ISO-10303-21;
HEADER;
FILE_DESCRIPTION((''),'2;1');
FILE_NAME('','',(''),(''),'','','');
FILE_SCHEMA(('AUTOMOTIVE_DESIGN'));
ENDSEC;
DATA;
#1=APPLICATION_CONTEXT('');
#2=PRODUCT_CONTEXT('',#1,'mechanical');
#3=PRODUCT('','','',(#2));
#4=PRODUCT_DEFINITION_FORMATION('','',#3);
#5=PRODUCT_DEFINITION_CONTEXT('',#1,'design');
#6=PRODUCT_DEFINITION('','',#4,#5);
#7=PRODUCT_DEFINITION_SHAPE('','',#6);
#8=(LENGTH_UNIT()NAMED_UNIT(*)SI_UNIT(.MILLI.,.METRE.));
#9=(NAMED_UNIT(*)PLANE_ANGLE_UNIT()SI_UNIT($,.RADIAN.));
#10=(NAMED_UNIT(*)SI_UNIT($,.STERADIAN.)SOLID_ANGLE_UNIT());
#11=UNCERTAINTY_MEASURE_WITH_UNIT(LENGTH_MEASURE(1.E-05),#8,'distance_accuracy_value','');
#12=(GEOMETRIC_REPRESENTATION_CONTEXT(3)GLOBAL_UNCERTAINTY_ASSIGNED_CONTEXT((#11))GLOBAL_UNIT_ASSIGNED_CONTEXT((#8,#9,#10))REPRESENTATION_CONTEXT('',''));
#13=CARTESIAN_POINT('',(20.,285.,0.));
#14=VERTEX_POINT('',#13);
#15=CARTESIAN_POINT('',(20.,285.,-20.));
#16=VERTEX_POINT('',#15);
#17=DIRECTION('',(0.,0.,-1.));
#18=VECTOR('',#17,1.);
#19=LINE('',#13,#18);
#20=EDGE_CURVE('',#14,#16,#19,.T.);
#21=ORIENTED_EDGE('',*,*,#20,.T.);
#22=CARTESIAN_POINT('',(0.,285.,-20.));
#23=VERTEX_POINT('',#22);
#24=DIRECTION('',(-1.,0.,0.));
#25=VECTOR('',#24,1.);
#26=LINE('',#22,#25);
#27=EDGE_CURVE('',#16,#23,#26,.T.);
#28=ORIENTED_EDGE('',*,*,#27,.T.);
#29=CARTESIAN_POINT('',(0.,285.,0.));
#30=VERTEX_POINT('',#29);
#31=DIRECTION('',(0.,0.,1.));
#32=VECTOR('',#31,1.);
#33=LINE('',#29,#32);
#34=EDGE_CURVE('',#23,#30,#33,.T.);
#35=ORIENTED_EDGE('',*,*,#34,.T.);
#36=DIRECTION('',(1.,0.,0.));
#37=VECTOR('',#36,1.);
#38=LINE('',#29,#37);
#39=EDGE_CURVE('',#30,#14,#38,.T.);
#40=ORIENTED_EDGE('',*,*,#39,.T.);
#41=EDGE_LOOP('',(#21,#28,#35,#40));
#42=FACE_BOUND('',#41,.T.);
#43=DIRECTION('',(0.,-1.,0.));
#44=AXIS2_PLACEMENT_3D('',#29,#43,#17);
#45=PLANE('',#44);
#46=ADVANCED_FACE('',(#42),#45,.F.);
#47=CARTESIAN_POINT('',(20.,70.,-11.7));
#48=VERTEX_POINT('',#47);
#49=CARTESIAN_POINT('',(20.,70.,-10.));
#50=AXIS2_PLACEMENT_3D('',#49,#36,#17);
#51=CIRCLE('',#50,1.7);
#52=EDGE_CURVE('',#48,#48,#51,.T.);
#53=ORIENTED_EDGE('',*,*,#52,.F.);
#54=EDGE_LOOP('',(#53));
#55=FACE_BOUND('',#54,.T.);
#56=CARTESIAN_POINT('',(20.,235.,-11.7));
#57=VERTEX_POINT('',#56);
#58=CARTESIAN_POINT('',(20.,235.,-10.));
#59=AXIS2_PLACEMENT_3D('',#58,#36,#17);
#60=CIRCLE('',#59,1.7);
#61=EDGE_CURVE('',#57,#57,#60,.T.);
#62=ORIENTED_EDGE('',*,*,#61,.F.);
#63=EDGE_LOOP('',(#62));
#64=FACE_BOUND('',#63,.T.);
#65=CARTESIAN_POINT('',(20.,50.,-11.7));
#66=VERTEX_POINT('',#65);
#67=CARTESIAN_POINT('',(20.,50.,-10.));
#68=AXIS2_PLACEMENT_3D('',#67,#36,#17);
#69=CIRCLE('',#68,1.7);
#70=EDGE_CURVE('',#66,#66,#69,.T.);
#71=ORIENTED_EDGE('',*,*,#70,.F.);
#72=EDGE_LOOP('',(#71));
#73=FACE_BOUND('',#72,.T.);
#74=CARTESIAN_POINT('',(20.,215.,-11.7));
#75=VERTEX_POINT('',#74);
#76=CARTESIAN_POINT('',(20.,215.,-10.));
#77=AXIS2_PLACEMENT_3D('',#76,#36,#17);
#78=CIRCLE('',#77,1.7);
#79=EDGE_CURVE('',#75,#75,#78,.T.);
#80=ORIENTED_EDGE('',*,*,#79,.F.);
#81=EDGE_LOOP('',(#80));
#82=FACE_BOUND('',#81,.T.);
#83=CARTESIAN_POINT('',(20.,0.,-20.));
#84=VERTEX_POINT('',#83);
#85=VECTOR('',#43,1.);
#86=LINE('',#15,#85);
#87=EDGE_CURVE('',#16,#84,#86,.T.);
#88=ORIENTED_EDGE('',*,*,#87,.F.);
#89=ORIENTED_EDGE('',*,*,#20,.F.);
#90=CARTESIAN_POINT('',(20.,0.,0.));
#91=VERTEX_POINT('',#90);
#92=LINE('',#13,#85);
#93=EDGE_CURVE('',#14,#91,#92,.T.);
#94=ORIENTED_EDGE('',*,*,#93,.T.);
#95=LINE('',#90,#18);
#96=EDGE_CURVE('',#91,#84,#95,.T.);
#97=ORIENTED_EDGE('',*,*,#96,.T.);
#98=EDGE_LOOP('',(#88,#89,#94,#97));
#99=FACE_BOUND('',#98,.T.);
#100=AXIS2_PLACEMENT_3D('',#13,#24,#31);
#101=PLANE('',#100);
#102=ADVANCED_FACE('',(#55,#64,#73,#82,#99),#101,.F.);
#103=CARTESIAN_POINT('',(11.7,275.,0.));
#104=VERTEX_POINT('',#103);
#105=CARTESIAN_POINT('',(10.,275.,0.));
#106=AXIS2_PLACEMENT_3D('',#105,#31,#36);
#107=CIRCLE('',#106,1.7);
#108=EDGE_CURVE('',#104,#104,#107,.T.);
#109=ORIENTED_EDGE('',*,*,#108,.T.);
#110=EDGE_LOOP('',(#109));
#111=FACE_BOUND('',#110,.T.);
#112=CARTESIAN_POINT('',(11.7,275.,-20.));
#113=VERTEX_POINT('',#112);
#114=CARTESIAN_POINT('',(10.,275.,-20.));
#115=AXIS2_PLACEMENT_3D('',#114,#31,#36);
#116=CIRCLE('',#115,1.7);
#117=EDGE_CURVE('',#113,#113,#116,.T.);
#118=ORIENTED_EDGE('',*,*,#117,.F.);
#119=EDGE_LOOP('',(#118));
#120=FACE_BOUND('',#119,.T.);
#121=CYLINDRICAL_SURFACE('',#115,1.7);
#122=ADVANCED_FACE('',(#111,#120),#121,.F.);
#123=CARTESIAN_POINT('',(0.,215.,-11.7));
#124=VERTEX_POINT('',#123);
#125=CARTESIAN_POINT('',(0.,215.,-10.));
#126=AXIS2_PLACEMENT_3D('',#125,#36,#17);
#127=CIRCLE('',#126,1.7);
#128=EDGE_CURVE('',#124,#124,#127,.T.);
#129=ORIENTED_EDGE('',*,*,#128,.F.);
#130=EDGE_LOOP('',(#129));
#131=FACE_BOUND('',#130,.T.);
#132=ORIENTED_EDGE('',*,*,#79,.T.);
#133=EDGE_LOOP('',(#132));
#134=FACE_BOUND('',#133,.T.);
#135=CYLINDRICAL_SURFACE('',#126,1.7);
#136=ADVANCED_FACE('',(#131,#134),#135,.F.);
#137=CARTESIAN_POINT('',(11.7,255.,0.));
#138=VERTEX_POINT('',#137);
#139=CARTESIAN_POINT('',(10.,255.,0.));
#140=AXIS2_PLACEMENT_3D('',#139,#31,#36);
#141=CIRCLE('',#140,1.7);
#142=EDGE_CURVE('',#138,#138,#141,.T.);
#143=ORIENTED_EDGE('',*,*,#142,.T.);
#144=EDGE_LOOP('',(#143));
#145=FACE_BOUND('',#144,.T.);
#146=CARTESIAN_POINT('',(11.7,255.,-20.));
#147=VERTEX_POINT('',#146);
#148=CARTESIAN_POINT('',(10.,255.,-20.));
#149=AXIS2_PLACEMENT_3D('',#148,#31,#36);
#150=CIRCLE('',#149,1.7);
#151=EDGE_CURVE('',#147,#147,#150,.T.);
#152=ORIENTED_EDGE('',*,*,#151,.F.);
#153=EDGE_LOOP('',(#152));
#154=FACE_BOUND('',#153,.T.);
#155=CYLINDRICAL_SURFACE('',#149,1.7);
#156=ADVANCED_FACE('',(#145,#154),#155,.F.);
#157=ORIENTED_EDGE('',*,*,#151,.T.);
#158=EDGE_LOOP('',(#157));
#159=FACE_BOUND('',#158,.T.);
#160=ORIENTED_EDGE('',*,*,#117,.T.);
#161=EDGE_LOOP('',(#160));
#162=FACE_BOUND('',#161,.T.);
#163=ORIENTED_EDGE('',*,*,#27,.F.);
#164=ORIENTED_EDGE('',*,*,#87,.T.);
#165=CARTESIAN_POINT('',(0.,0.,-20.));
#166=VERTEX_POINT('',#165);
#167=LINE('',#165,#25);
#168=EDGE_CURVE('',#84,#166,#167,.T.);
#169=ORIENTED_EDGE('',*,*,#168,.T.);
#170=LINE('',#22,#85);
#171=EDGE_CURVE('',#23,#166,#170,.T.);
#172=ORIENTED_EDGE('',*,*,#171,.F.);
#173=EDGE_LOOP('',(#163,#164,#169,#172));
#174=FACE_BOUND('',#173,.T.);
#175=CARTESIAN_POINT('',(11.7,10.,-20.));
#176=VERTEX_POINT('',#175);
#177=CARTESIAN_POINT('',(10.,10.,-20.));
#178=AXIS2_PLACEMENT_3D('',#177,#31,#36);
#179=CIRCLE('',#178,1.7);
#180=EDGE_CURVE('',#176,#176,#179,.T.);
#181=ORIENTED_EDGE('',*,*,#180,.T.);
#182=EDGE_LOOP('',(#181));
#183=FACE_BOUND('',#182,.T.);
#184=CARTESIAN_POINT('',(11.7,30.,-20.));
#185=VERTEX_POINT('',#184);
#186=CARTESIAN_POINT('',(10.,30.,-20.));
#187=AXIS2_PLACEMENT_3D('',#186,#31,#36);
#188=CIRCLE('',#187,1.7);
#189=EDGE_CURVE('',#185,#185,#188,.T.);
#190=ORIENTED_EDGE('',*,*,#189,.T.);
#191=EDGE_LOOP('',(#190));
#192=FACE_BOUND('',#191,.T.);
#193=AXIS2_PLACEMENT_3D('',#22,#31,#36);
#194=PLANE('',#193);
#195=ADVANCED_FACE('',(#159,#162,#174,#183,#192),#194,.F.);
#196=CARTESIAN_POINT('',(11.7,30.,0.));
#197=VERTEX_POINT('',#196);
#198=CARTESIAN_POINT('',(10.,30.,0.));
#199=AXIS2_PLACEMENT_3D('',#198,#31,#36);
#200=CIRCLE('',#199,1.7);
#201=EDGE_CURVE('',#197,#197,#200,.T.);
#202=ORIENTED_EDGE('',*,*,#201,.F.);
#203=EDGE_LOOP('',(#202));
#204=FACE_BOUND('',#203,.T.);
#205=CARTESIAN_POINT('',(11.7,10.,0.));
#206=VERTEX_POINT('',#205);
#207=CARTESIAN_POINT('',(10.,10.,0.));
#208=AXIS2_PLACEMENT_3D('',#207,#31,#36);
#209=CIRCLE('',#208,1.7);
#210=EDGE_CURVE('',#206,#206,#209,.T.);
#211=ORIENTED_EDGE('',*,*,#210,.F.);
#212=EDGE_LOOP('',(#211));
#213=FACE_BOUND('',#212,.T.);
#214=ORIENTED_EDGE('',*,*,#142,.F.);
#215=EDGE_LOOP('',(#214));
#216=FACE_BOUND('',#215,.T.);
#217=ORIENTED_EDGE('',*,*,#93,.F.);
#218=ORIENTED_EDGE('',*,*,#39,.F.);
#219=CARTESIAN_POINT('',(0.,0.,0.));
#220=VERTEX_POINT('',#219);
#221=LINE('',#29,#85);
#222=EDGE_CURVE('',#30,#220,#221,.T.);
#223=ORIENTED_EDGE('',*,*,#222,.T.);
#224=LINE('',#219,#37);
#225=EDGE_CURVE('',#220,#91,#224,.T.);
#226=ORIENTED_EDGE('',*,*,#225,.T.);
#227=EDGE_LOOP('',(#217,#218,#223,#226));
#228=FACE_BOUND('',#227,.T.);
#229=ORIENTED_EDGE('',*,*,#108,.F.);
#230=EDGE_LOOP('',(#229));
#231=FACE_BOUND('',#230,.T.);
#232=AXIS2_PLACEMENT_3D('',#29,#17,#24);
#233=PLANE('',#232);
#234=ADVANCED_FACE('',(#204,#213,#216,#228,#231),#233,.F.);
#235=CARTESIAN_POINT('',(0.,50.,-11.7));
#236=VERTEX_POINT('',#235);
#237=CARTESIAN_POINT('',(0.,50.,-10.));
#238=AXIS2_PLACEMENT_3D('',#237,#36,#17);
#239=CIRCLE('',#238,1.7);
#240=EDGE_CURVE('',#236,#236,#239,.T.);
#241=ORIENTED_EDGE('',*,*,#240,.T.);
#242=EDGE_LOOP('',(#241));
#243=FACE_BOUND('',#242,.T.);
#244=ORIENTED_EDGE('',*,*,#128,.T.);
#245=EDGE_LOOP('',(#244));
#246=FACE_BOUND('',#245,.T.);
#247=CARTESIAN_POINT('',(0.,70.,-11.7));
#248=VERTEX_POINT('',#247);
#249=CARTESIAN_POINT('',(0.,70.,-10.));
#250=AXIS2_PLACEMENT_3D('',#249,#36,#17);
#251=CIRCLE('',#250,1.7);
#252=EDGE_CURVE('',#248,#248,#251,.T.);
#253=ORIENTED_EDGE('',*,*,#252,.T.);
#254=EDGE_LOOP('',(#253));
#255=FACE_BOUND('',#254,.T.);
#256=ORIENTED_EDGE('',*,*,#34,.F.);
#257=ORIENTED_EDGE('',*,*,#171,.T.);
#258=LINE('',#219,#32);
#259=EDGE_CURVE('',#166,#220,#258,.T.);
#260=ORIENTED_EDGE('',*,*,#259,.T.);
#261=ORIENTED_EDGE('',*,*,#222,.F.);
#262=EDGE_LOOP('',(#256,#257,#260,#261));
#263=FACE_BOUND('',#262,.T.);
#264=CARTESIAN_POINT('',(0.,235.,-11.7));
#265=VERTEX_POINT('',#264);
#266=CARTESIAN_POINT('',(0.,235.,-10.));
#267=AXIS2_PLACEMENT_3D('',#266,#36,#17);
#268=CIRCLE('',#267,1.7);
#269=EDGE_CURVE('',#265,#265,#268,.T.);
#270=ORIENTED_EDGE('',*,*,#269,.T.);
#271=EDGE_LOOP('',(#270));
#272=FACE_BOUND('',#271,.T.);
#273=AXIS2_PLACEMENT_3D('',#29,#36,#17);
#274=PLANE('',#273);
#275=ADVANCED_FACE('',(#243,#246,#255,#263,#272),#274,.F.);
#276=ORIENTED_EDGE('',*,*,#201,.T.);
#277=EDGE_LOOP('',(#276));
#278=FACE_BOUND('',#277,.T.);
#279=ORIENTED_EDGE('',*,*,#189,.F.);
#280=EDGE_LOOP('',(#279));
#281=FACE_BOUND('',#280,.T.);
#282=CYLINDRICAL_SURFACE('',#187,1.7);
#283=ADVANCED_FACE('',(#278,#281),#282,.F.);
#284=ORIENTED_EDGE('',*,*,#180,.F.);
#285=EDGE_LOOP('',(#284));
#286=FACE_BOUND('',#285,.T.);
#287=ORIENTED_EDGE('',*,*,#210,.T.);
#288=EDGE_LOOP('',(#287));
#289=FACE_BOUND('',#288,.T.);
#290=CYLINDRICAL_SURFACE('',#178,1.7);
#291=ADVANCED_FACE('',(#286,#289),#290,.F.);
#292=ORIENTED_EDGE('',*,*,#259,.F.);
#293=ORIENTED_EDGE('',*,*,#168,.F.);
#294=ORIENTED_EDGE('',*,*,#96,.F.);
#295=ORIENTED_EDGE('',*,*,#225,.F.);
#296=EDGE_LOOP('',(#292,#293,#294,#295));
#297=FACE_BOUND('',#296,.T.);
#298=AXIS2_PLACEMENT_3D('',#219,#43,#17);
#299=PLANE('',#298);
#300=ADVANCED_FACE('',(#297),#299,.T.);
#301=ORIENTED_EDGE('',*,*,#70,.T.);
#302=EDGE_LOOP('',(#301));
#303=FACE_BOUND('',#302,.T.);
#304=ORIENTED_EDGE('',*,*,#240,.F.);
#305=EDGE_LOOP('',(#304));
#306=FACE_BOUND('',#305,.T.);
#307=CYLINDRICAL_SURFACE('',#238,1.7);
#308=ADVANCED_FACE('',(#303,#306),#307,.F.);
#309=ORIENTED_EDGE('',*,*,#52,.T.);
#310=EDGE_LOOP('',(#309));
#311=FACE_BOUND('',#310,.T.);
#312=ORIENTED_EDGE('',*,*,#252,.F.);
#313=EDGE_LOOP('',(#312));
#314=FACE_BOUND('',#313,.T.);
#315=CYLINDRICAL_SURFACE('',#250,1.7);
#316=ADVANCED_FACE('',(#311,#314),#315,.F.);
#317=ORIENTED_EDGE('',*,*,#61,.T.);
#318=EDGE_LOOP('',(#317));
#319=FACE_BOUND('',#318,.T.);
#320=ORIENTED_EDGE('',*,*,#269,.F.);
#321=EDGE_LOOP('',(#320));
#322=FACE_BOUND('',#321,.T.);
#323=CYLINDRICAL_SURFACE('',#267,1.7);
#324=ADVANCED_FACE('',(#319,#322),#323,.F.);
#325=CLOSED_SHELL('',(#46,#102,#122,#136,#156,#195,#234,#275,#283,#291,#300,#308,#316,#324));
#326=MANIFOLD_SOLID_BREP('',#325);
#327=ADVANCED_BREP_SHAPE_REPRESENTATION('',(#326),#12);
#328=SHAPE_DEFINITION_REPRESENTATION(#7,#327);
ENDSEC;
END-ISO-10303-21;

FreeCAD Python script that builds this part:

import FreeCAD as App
import Part
import Sketcher
Q = App.Units.Quantity


def add_polygon(sketch, points):
    """Adds a closed chain of lines whose ends are joined by coincident constraints."""
    first, n = sketch.GeometryCount, len(points)
    for a, b in zip(points, points[1:] + points[:1]):
        sketch.addGeometry(Part.LineSegment(App.Vector(*a, 0), App.Vector(*b, 0)), False)
    for i in range(n):
        sketch.addConstraint(Sketcher.Constraint("Coincident", first + i, 2, first + (i + 1) % n, 1))

doc = App.newDocument("Part")
params = doc.addObject("Spreadsheet::Sheet", "Params")
for row, (alias, value) in enumerate([
    ("sketch1_width", "20 mm"),
    ("pad1_length", "285 mm"),
    ("sketch2_diameter", "3.4 mm"),
    ("sketch3_diameter", "3.4 mm"),
], start=1):
    params.set(f"A{row}", alias)
    params.set(f"B{row}", "=" + value)
    params.setAlias(f"B{row}", alias)

body = doc.addObject("PartDesign::Body", "Body")

sketch1 = doc.addObject("Sketcher::SketchObject", "Sketch")
body.addObject(sketch1)
sketch1.AttachmentSupport = (doc.XZ_Plane, [""])
sketch1.MapMode = "FlatFace"
add_polygon(sketch1, [(0, -20), (0, 0), (20, 0), (20, -20)])
sketch1.addConstraint([
    Sketcher.Constraint("Vertical", 0),
    Sketcher.Constraint("Horizontal", 1),
    Sketcher.Constraint("Vertical", 2),
    Sketcher.Constraint("Horizontal", 3),
    Sketcher.Constraint("Coincident", 0, 2, -1, 1),
    Sketcher.Constraint("Equal", 3, 0),
    Sketcher.Constraint("DistanceX", 1, 1, 1, 2, Q("20 mm")),
])
sketch1.setExpression("Constraints[10]", "Params.sketch1_width")
pad1 = doc.addObject("PartDesign::Pad", "Pad")
body.addObject(pad1)
pad1.Profile = sketch1
pad1.setExpression("Length", "Params.pad1_length")
pad1.Reversed = True

sketch2 = doc.addObject("Sketcher::SketchObject", "Sketch001")
body.addObject(sketch2)
sketch2.AttachmentSupport = (doc.XY_Plane, [""])
sketch2.MapMode = "FlatFace"
sketch2.addGeometry([
    Part.Circle(App.Vector(10, 275, 0), App.Vector(0, 0, 1), 1.7),
    Part.Circle(App.Vector(10, 255, 0), App.Vector(0, 0, 1), 1.7),
    Part.Circle(App.Vector(10, 30, 0), App.Vector(0, 0, 1), 1.7),
    Part.Circle(App.Vector(10, 10, 0), App.Vector(0, 0, 1), 1.7),
], False)
sketch2.addConstraint([
    Sketcher.Constraint("Equal", 0, 1),
    Sketcher.Constraint("Equal", 1, 2),
    Sketcher.Constraint("Equal", 2, 3),
    Sketcher.Constraint("Vertical", 0, 3, 1, 3),
    Sketcher.Constraint("Vertical", 1, 3, 2, 3),
    Sketcher.Constraint("Vertical", 2, 3, 3, 3),
    Sketcher.Constraint("Diameter", 0, Q("3.4 mm")),
    Sketcher.Constraint("DistanceX", -1, 1, 0, 3, Q("10 mm")),
    Sketcher.Constraint("DistanceY", -1, 1, 0, 3, Q("275 mm")),
    Sketcher.Constraint("DistanceY", -1, 1, 1, 3, Q("255 mm")),
    Sketcher.Constraint("DistanceY", -1, 1, 2, 3, Q("30 mm")),
    Sketcher.Constraint("DistanceY", -1, 1, 3, 3, Q("10 mm")),
])
sketch2.setExpression("Constraints[6]", "Params.sketch2_diameter")
pocket1 = doc.addObject("PartDesign::Pocket", "Pocket")
body.addObject(pocket1)
pocket1.Profile = sketch2
pocket1.Type = "ThroughAll"

sketch3 = doc.addObject("Sketcher::SketchObject", "Sketch002")
body.addObject(sketch3)
sketch3.AttachmentSupport = (doc.YZ_Plane, [""])
sketch3.MapMode = "FlatFace"
sketch3.AttachmentOffset = App.Placement(App.Vector(0, 0, 20), App.Rotation())
sketch3.addGeometry([
    Part.Circle(App.Vector(235, -10, 0), App.Vector(0, 0, 1), 1.7),
    Part.Circle(App.Vector(215, -10, 0), App.Vector(0, 0, 1), 1.7),
    Part.Circle(App.Vector(50, -10, 0), App.Vector(0, 0, 1), 1.7),
    Part.Circle(App.Vector(70, -10, 0), App.Vector(0, 0, 1), 1.7),
], False)
sketch3.addConstraint([
    Sketcher.Constraint("Equal", 0, 1),
    Sketcher.Constraint("Equal", 1, 2),
    Sketcher.Constraint("Equal", 2, 3),
    Sketcher.Constraint("Horizontal", 0, 3, 1, 3),
    Sketcher.Constraint("Horizontal", 1, 3, 2, 3),
    Sketcher.Constraint("Horizontal", 2, 3, 3, 3),
    Sketcher.Constraint("Diameter", 0, Q("3.4 mm")),
    Sketcher.Constraint("DistanceX", -1, 1, 0, 3, Q("235 mm")),
    Sketcher.Constraint("DistanceY", 0, 3, -1, 1, Q("10 mm")),
    Sketcher.Constraint("DistanceX", -1, 1, 1, 3, Q("215 mm")),
    Sketcher.Constraint("DistanceX", -1, 1, 2, 3, Q("50 mm")),
    Sketcher.Constraint("DistanceX", -1, 1, 3, 3, Q("70 mm")),
])
sketch3.setExpression("Constraints[6]", "Params.sketch3_diameter")
pocket2 = doc.addObject("PartDesign::Pocket", "Pocket001")
body.addObject(pocket2)
pocket2.Profile = sketch3
pocket2.Type = "ThroughAll"

doc.recompute()
